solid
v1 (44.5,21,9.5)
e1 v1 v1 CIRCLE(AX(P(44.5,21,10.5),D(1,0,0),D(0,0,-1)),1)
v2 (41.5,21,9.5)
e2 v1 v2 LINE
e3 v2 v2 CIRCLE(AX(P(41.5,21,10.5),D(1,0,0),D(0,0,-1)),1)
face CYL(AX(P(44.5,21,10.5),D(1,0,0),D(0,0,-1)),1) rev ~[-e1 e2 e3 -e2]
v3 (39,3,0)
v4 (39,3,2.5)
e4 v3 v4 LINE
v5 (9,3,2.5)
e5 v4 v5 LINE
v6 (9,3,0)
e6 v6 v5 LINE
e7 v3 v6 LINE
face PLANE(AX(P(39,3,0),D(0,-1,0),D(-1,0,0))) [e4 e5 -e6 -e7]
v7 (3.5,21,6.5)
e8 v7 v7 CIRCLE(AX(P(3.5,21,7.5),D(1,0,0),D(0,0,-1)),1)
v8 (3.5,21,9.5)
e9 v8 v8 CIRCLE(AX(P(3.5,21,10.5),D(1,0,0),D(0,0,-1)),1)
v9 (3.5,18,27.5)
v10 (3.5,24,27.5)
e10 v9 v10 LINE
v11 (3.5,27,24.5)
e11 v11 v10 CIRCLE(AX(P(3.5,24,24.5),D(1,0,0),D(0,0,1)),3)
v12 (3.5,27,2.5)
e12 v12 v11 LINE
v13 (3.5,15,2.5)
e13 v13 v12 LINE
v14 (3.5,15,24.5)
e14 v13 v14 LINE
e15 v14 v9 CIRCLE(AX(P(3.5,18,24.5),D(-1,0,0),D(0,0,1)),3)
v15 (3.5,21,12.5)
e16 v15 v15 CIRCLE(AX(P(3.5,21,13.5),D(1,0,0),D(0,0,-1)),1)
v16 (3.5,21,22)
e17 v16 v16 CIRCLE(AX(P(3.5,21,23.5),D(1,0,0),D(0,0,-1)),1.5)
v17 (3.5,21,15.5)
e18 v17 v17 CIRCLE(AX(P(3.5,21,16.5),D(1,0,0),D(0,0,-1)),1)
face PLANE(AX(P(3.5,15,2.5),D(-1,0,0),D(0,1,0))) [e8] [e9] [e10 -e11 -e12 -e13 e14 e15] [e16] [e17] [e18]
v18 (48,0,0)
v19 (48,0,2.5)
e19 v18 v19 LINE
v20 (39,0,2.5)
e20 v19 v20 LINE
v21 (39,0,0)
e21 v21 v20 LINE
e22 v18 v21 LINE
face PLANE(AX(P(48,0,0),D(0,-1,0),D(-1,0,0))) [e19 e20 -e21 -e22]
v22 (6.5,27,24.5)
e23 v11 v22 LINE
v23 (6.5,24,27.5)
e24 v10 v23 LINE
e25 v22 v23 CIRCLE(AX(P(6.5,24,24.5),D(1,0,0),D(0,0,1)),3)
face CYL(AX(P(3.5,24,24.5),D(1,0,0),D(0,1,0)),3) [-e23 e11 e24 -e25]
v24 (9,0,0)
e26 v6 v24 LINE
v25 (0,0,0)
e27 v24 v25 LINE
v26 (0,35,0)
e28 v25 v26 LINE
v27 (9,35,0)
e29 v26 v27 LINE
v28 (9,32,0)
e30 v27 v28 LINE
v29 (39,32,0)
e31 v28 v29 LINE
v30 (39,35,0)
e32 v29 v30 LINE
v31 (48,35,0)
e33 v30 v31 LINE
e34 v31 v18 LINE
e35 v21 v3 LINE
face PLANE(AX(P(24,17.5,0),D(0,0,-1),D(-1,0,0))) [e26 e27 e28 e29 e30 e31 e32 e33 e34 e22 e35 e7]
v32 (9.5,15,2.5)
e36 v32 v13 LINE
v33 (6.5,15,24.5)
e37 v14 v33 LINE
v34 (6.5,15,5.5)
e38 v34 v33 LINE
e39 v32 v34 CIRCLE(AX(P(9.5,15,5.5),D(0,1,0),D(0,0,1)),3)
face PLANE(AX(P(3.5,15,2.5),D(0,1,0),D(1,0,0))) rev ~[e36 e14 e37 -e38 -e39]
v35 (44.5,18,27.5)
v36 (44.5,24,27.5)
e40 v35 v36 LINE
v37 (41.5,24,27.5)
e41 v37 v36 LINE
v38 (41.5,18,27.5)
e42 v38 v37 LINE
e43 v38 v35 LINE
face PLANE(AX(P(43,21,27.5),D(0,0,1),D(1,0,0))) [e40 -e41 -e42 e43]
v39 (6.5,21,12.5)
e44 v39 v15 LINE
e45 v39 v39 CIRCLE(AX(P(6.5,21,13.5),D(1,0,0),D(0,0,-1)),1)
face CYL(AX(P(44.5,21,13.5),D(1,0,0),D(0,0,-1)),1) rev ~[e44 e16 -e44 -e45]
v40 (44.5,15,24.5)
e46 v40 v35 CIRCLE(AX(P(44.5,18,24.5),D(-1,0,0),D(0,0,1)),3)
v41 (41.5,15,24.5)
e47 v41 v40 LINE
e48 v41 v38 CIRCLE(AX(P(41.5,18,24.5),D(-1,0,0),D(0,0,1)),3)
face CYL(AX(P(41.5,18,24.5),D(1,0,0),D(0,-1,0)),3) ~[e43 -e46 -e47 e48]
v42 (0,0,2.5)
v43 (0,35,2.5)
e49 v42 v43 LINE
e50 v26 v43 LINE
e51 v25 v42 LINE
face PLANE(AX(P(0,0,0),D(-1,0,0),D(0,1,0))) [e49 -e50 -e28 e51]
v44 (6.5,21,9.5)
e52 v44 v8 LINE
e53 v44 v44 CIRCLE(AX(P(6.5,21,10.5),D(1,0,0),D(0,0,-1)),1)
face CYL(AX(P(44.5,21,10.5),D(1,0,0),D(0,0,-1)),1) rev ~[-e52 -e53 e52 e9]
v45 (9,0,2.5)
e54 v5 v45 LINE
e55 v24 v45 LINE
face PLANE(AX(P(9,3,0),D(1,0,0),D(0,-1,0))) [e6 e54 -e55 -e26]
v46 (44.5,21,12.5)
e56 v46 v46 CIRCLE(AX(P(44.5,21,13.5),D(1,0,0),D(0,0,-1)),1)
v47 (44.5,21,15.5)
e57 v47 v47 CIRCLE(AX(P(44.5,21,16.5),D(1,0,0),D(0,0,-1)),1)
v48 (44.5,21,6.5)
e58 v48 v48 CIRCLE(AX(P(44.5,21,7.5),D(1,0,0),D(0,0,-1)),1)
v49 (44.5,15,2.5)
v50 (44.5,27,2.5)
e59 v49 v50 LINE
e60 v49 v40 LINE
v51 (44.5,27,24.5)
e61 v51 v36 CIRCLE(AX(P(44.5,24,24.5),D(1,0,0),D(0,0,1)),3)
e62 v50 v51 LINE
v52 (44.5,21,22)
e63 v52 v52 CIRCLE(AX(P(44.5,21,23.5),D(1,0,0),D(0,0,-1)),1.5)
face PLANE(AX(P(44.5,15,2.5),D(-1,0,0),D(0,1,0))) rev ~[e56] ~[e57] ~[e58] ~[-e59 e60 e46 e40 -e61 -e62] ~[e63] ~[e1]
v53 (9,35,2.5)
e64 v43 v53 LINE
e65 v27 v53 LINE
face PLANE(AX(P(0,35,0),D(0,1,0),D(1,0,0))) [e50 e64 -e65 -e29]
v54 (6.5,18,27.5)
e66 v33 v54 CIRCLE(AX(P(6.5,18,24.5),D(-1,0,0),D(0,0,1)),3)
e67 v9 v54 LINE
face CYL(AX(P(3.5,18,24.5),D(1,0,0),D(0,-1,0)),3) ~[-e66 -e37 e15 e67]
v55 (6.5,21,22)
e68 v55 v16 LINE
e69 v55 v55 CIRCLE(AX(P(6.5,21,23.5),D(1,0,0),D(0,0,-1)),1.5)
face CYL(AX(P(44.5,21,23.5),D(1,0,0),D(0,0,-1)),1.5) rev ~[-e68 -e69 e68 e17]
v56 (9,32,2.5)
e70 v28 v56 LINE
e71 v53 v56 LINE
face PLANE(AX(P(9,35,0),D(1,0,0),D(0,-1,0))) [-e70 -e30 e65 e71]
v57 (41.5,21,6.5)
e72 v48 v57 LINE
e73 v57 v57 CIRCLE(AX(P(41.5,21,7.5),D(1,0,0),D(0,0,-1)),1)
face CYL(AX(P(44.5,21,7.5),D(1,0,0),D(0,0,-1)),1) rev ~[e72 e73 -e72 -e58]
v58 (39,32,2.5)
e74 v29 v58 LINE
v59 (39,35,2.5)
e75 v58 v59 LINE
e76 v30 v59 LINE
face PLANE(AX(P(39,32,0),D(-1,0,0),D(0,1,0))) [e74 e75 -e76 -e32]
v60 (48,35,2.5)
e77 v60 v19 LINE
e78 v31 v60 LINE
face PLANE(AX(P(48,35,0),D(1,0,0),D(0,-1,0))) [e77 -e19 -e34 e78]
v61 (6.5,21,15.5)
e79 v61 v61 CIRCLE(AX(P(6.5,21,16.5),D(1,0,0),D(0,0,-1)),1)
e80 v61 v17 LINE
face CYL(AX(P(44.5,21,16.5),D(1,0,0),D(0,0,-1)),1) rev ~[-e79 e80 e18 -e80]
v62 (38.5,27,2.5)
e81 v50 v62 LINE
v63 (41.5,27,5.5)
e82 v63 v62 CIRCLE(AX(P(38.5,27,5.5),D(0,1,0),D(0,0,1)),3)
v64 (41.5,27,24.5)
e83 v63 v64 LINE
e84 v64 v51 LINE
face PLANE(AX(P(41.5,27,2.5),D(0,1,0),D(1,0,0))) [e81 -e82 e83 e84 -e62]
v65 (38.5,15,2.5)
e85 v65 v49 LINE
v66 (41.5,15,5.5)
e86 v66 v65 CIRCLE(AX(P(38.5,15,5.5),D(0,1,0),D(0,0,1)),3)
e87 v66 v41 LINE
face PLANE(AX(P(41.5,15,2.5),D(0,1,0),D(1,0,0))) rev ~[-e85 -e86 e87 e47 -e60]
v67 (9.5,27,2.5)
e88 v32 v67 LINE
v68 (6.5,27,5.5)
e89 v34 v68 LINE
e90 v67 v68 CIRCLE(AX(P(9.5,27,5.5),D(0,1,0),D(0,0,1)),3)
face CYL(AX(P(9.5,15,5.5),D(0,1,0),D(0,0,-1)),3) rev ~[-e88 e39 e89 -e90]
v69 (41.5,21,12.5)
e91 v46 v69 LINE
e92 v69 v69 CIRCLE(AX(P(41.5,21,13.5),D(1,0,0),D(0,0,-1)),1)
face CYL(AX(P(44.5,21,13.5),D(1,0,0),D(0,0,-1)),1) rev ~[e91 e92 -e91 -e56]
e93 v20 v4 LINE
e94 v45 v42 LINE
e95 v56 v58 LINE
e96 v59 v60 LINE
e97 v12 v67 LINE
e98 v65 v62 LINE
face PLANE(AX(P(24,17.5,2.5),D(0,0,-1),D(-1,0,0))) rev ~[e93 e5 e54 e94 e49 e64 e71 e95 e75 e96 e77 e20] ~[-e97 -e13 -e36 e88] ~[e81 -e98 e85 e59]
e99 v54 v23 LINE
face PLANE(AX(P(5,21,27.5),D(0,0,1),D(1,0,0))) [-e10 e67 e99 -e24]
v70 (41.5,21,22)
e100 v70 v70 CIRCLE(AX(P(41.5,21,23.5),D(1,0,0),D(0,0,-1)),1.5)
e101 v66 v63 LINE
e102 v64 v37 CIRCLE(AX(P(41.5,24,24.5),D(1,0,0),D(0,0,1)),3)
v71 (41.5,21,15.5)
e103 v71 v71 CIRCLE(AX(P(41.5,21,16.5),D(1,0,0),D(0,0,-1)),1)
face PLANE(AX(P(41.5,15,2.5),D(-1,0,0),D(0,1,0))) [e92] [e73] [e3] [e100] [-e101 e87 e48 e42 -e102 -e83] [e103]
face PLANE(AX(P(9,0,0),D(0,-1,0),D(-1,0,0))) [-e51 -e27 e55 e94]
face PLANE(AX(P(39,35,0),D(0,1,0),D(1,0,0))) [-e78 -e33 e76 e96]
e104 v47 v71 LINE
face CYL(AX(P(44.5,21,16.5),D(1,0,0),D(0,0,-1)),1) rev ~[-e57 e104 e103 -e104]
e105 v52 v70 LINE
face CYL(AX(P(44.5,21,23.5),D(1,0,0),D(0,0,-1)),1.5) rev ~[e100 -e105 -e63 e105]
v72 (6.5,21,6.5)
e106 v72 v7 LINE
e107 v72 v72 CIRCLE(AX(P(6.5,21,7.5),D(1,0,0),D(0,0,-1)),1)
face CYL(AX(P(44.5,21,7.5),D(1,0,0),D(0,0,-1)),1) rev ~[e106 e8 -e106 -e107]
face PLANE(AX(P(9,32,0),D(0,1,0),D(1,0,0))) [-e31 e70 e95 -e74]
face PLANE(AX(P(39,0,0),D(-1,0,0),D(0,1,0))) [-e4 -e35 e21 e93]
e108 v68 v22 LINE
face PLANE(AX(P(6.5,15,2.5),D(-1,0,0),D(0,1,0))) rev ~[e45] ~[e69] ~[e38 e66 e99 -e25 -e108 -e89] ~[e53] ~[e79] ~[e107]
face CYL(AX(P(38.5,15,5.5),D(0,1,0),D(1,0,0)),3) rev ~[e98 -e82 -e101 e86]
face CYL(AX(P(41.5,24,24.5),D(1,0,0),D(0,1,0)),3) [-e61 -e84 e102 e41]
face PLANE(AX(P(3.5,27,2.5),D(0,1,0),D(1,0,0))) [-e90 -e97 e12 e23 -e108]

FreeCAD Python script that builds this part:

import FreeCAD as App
import Part
import Sketcher

V = App.Vector
Q = App.Units.Quantity


def edges_at(feature, points):
    """Names of the edges that pass closest to the given points."""
    edges = feature.Shape.Edges
    near = lambda p: min(range(len(edges)), key=lambda i: edges[i].distToShape(Part.Vertex(*p))[0])
    return sorted({f"Edge{near(p) + 1}" for p in points})

doc = App.newDocument("Part")
params = doc.addObject("Spreadsheet::Sheet", "Params")
for row, (alias, value) in enumerate([
    ("sketch1_width", "9 mm"),
    ("sketch1_width2", "30 mm"),
    ("sketch1_height", "3 mm"),
    ("sketch1_height2", "35 mm"),
    ("pad1_length", "2.5 mm"),
    ("sketch2_width", "3 mm"),
    ("sketch2_height", "12 mm"),
    ("pad2_length", "25 mm"),
    ("sketch3_diameter", "2 mm"),
    ("sketch3_diameter2", "3 mm"),
    ("pocket1_length", "50 mm"),
    ("fillet_radius", "3 mm"),
    ("fillet2_radius", "3 mm"),
], start=1):
    params.set(f"A{row}", alias)
    params.set(f"B{row}", "=" + value)
    params.setAlias(f"B{row}", alias)

body = doc.addObject("PartDesign::Body", "Body")

sketch1 = body.newObject("Sketcher::SketchObject", "Sketch")
sketch1.AttachmentSupport = (doc.getObject("XY_Plane"), [""])
sketch1.MapMode = "FlatFace"
sketch1.addGeometry(Part.LineSegment(V(48, 35, 0), V(39, 35, 0)), False)
sketch1.addGeometry(Part.LineSegment(V(39, 35, 0), V(39, 32, 0)), False)
sketch1.addGeometry(Part.LineSegment(V(39, 32, 0), V(9, 32, 0)), False)
sketch1.addGeometry(Part.LineSegment(V(9, 32, 0), V(9, 35, 0)), False)
sketch1.addGeometry(Part.LineSegment(V(9, 35, 0), V(0, 35, 0)), False)
sketch1.addGeometry(Part.LineSegment(V(0, 35, 0), V(0, 0, 0)), False)
sketch1.addGeometry(Part.LineSegment(V(0, 0, 0), V(9, 0, 0)), False)
sketch1.addGeometry(Part.LineSegment(V(9, 0, 0), V(9, 3, 0)), False)
sketch1.addGeometry(Part.LineSegment(V(9, 3, 0), V(39, 3, 0)), False)
sketch1.addGeometry(Part.LineSegment(V(39, 3, 0), V(39, 0, 0)), False)
sketch1.addGeometry(Part.LineSegment(V(39, 0, 0), V(48, 0, 0)), False)
sketch1.addGeometry(Part.LineSegment(V(48, 0, 0), V(48, 35, 0)), False)
sketch1.addConstraint(Sketcher.Constraint("Coincident", 0, 2, 1, 1))
sketch1.addConstraint(Sketcher.Constraint("Coincident", 1, 2, 2, 1))
sketch1.addConstraint(Sketcher.Constraint("Coincident", 2, 2, 3, 1))
sketch1.addConstraint(Sketcher.Constraint("Coincident", 3, 2, 4, 1))
sketch1.addConstraint(Sketcher.Constraint("Coincident", 4, 2, 5, 1))
sketch1.addConstraint(Sketcher.Constraint("Coincident", 5, 2, 6, 1))
sketch1.addConstraint(Sketcher.Constraint("Coincident", 6, 2, 7, 1))
sketch1.addConstraint(Sketcher.Constraint("Coincident", 7, 2, 8, 1))
sketch1.addConstraint(Sketcher.Constraint("Coincident", 8, 2, 9, 1))
sketch1.addConstraint(Sketcher.Constraint("Coincident", 9, 2, 10, 1))
sketch1.addConstraint(Sketcher.Constraint("Coincident", 10, 2, 11, 1))
sketch1.addConstraint(Sketcher.Constraint("Coincident", 11, 2, 0, 1))
sketch1.addConstraint(Sketcher.Constraint("Horizontal", 0))
sketch1.addConstraint(Sketcher.Constraint("Vertical", 1))
sketch1.addConstraint(Sketcher.Constraint("Horizontal", 2))
sketch1.addConstraint(Sketcher.Constraint("Vertical", 3))
sketch1.addConstraint(Sketcher.Constraint("Horizontal", 4))
sketch1.addConstraint(Sketcher.Constraint("Vertical", 5))
sketch1.addConstraint(Sketcher.Constraint("Horizontal", 6))
sketch1.addConstraint(Sketcher.Constraint("Vertical", 7))
sketch1.addConstraint(Sketcher.Constraint("Horizontal", 8))
sketch1.addConstraint(Sketcher.Constraint("Vertical", 9))
sketch1.addConstraint(Sketcher.Constraint("Horizontal", 10))
sketch1.addConstraint(Sketcher.Constraint("Vertical", 11))
sketch1.addConstraint(Sketcher.Constraint("Coincident", 5, 2, -1, 1))
sketch1.addConstraint(Sketcher.Constraint("PointOnObject", 9, 2, -1))
sketch1.addConstraint(Sketcher.Constraint("Horizontal", 0, 2, 3, 2))
sketch1.addConstraint(Sketcher.Constraint("Vertical", 3, 2, 6, 2))
sketch1.addConstraint(Sketcher.Constraint("Vertical", 1, 2, 8, 2))
sketch1.addConstraint(Sketcher.Constraint("Equal", 0, 4))
sketch1.addConstraint(Sketcher.Constraint("Equal", 3, 7))
sketch1.addConstraint(Sketcher.Constraint("DistanceX", 0, 2, 0, 1, Q("9 mm")))
sketch1.addConstraint(Sketcher.Constraint("DistanceX", 2, 2, 2, 1, Q("30 mm")))
sketch1.addConstraint(Sketcher.Constraint("DistanceY", 1, 2, 1, 1, Q("3 mm")))
sketch1.addConstraint(Sketcher.Constraint("DistanceY", 5, 2, 5, 1, Q("35 mm")))
sketch1.setExpression("Constraints[31]", "Params.sketch1_width")
sketch1.setExpression("Constraints[32]", "Params.sketch1_width2")
sketch1.setExpression("Constraints[33]", "Params.sketch1_height")
sketch1.setExpression("Constraints[34]", "Params.sketch1_height2")
pad1 = body.newObject("PartDesign::Pad", "Pad")
pad1.Profile = sketch1
pad1.setExpression("Length", "Params.pad1_length")

sketch2 = body.newObject("Sketcher::SketchObject", "Sketch001")
sketch2.AttachmentSupport = (doc.getObject("XY_Plane"), [""])
sketch2.MapMode = "FlatFace"
sketch2.AttachmentOffset = App.Placement(V(0, 0, 2.5), App.Rotation())
sketch2.addGeometry(Part.LineSegment(V(3.5, 27, 0), V(3.5, 15, 0)), False)
sketch2.addGeometry(Part.LineSegment(V(3.5, 15, 0), V(6.5, 15, 0)), False)
sketch2.addGeometry(Part.LineSegment(V(6.5, 15, 0), V(6.5, 27, 0)), False)
sketch2.addGeometry(Part.LineSegment(V(6.5, 27, 0), V(3.5, 27, 0)), False)
sketch2.addGeometry(Part.LineSegment(V(41.5, 27, 0), V(41.5, 15, 0)), False)
sketch2.addGeometry(Part.LineSegment(V(41.5, 15, 0), V(44.5, 15, 0)), False)
sketch2.addGeometry(Part.LineSegment(V(44.5, 15, 0), V(44.5, 27, 0)), False)
sketch2.addGeometry(Part.LineSegment(V(44.5, 27, 0), V(41.5, 27, 0)), False)
sketch2.addConstraint(Sketcher.Constraint("Coincident", 0, 2, 1, 1))
sketch2.addConstraint(Sketcher.Constraint("Coincident", 1, 2, 2, 1))
sketch2.addConstraint(Sketcher.Constraint("Coincident", 2, 2, 3, 1))
sketch2.addConstraint(Sketcher.Constraint("Coincident", 3, 2, 0, 1))
sketch2.addConstraint(Sketcher.Constraint("Coincident", 4, 2, 5, 1))
sketch2.addConstraint(Sketcher.Constraint("Coincident", 5, 2, 6, 1))
sketch2.addConstraint(Sketcher.Constraint("Coincident", 6, 2, 7, 1))
sketch2.addConstraint(Sketcher.Constraint("Coincident", 7, 2, 4, 1))
sketch2.addConstraint(Sketcher.Constraint("Vertical", 0))
sketch2.addConstraint(Sketcher.Constraint("Horizontal", 1))
sketch2.addConstraint(Sketcher.Constraint("Vertical", 2))
sketch2.addConstraint(Sketcher.Constraint("Horizontal", 3))
sketch2.addConstraint(Sketcher.Constraint("Vertical", 4))
sketch2.addConstraint(Sketcher.Constraint("Horizontal", 5))
sketch2.addConstraint(Sketcher.Constraint("Vertical", 6))
sketch2.addConstraint(Sketcher.Constraint("Horizontal", 7))
sketch2.addConstraint(Sketcher.Constraint("Horizontal", 1, 2, 4, 2))
sketch2.addConstraint(Sketcher.Constraint("Horizontal", 3, 2, 6, 2))
sketch2.addConstraint(Sketcher.Constraint("Equal", 3, 5))
sketch2.addConstraint(Sketcher.Constraint("DistanceX", 1, 1, 1, 2, Q("3 mm")))
sketch2.addConstraint(Sketcher.Constraint("DistanceY", 0, 2, 0, 1, Q("12 mm")))
sketch2.addConstraint(Sketcher.Constraint("DistanceY", -1, 1, 0, 2, Q("15 mm")))
sketch2.addConstraint(Sketcher.Constraint("DistanceX", 1, 2, 4, 2, Q("35 mm")))
sketch2.addConstraint(Sketcher.Constraint("DistanceX", -1, 1, 0, 2, Q("3.5 mm")))
sketch2.setExpression("Constraints[19]", "Params.sketch2_width")
sketch2.setExpression("Constraints[20]", "Params.sketch2_height")
pad2 = body.newObject("PartDesign::Pad", "Pad001")
pad2.Profile = sketch2
pad2.setExpression("Length", "Params.pad2_length")

sketch3 = body.newObject("Sketcher::SketchObject", "Sketch002")
sketch3.AttachmentSupport = (doc.getObject("YZ_Plane"), [""])
sketch3.MapMode = "FlatFace"
sketch3.AttachmentOffset = App.Placement(V(0, 0, 44.5), App.Rotation())
sketch3.addGeometry(Part.Circle(V(21, 7.5, 0), V(0, 0, 1), 1), False)
sketch3.addGeometry(Part.Circle(V(21, 10.5, 0), V(0, 0, 1), 1), False)
sketch3.addGeometry(Part.Circle(V(21, 13.5, 0), V(0, 0, 1), 1), False)
sketch3.addGeometry(Part.Circle(V(21, 16.5, 0), V(0, 0, 1), 1), False)
sketch3.addGeometry(Part.Circle(V(21, 23.5, 0), V(0, 0, 1), 1.5), False)
sketch3.addConstraint(Sketcher.Constraint("Equal", 0, 1))
sketch3.addConstraint(Sketcher.Constraint("Equal", 1, 2))
sketch3.addConstraint(Sketcher.Constraint("Equal", 2, 3))
sketch3.addConstraint(Sketcher.Constraint("Vertical", 0, 3, 1, 3))
sketch3.addConstraint(Sketcher.Constraint("Vertical", 1, 3, 2, 3))
sketch3.addConstraint(Sketcher.Constraint("Vertical", 2, 3, 3, 3))
sketch3.addConstraint(Sketcher.Constraint("Vertical", 3, 3, 4, 3))
sketch3.addConstraint(Sketcher.Constraint("Diameter", 0, Q("2 mm")))
sketch3.addConstraint(Sketcher.Constraint("Diameter", 4, Q("3 mm")))
sketch3.addConstraint(Sketcher.Constraint("DistanceX", -1, 1, 0, 3, Q("21 mm")))
sketch3.addConstraint(Sketcher.Constraint("DistanceY", 0, 3, 1, 3, Q("3 mm")))
sketch3.addConstraint(Sketcher.Constraint("DistanceY", 1, 3, 2, 3, Q("3 mm")))
sketch3.addConstraint(Sketcher.Constraint("DistanceY", 2, 3, 3, 3, Q("3 mm")))
sketch3.addConstraint(Sketcher.Constraint("DistanceY", 3, 3, 4, 3, Q("7 mm")))
sketch3.addConstraint(Sketcher.Constraint("DistanceY", -1, 1, 0, 3, Q("7.5 mm")))
sketch3.setExpression("Constraints[7]", "Params.sketch3_diameter")
sketch3.setExpression("Constraints[8]", "Params.sketch3_diameter2")
pocket1 = body.newObject("PartDesign::Pocket", "Pocket")
pocket1.Profile = sketch3
pocket1.setExpression("Length", "Params.pocket1_length")
doc.recompute()

fillet = body.newObject("PartDesign::Fillet", "Fillet")
fillet.Base = (pocket1, edges_at(pocket1, [
    (5, 15, 27.5),
    (5, 27, 27.5),
    (43, 15, 27.5),
    (43, 27, 27.5),
]))
fillet.setExpression("Radius", "Params.fillet_radius")
doc.recompute()

fillet2 = body.newObject("PartDesign::Fillet", "Fillet001")
fillet2.Base = (fillet, edges_at(fillet, [(6.5, 21, 2.5), (41.5, 21, 2.5)]))
fillet2.setExpression("Radius", "Params.fillet2_radius")

doc.recompute()
